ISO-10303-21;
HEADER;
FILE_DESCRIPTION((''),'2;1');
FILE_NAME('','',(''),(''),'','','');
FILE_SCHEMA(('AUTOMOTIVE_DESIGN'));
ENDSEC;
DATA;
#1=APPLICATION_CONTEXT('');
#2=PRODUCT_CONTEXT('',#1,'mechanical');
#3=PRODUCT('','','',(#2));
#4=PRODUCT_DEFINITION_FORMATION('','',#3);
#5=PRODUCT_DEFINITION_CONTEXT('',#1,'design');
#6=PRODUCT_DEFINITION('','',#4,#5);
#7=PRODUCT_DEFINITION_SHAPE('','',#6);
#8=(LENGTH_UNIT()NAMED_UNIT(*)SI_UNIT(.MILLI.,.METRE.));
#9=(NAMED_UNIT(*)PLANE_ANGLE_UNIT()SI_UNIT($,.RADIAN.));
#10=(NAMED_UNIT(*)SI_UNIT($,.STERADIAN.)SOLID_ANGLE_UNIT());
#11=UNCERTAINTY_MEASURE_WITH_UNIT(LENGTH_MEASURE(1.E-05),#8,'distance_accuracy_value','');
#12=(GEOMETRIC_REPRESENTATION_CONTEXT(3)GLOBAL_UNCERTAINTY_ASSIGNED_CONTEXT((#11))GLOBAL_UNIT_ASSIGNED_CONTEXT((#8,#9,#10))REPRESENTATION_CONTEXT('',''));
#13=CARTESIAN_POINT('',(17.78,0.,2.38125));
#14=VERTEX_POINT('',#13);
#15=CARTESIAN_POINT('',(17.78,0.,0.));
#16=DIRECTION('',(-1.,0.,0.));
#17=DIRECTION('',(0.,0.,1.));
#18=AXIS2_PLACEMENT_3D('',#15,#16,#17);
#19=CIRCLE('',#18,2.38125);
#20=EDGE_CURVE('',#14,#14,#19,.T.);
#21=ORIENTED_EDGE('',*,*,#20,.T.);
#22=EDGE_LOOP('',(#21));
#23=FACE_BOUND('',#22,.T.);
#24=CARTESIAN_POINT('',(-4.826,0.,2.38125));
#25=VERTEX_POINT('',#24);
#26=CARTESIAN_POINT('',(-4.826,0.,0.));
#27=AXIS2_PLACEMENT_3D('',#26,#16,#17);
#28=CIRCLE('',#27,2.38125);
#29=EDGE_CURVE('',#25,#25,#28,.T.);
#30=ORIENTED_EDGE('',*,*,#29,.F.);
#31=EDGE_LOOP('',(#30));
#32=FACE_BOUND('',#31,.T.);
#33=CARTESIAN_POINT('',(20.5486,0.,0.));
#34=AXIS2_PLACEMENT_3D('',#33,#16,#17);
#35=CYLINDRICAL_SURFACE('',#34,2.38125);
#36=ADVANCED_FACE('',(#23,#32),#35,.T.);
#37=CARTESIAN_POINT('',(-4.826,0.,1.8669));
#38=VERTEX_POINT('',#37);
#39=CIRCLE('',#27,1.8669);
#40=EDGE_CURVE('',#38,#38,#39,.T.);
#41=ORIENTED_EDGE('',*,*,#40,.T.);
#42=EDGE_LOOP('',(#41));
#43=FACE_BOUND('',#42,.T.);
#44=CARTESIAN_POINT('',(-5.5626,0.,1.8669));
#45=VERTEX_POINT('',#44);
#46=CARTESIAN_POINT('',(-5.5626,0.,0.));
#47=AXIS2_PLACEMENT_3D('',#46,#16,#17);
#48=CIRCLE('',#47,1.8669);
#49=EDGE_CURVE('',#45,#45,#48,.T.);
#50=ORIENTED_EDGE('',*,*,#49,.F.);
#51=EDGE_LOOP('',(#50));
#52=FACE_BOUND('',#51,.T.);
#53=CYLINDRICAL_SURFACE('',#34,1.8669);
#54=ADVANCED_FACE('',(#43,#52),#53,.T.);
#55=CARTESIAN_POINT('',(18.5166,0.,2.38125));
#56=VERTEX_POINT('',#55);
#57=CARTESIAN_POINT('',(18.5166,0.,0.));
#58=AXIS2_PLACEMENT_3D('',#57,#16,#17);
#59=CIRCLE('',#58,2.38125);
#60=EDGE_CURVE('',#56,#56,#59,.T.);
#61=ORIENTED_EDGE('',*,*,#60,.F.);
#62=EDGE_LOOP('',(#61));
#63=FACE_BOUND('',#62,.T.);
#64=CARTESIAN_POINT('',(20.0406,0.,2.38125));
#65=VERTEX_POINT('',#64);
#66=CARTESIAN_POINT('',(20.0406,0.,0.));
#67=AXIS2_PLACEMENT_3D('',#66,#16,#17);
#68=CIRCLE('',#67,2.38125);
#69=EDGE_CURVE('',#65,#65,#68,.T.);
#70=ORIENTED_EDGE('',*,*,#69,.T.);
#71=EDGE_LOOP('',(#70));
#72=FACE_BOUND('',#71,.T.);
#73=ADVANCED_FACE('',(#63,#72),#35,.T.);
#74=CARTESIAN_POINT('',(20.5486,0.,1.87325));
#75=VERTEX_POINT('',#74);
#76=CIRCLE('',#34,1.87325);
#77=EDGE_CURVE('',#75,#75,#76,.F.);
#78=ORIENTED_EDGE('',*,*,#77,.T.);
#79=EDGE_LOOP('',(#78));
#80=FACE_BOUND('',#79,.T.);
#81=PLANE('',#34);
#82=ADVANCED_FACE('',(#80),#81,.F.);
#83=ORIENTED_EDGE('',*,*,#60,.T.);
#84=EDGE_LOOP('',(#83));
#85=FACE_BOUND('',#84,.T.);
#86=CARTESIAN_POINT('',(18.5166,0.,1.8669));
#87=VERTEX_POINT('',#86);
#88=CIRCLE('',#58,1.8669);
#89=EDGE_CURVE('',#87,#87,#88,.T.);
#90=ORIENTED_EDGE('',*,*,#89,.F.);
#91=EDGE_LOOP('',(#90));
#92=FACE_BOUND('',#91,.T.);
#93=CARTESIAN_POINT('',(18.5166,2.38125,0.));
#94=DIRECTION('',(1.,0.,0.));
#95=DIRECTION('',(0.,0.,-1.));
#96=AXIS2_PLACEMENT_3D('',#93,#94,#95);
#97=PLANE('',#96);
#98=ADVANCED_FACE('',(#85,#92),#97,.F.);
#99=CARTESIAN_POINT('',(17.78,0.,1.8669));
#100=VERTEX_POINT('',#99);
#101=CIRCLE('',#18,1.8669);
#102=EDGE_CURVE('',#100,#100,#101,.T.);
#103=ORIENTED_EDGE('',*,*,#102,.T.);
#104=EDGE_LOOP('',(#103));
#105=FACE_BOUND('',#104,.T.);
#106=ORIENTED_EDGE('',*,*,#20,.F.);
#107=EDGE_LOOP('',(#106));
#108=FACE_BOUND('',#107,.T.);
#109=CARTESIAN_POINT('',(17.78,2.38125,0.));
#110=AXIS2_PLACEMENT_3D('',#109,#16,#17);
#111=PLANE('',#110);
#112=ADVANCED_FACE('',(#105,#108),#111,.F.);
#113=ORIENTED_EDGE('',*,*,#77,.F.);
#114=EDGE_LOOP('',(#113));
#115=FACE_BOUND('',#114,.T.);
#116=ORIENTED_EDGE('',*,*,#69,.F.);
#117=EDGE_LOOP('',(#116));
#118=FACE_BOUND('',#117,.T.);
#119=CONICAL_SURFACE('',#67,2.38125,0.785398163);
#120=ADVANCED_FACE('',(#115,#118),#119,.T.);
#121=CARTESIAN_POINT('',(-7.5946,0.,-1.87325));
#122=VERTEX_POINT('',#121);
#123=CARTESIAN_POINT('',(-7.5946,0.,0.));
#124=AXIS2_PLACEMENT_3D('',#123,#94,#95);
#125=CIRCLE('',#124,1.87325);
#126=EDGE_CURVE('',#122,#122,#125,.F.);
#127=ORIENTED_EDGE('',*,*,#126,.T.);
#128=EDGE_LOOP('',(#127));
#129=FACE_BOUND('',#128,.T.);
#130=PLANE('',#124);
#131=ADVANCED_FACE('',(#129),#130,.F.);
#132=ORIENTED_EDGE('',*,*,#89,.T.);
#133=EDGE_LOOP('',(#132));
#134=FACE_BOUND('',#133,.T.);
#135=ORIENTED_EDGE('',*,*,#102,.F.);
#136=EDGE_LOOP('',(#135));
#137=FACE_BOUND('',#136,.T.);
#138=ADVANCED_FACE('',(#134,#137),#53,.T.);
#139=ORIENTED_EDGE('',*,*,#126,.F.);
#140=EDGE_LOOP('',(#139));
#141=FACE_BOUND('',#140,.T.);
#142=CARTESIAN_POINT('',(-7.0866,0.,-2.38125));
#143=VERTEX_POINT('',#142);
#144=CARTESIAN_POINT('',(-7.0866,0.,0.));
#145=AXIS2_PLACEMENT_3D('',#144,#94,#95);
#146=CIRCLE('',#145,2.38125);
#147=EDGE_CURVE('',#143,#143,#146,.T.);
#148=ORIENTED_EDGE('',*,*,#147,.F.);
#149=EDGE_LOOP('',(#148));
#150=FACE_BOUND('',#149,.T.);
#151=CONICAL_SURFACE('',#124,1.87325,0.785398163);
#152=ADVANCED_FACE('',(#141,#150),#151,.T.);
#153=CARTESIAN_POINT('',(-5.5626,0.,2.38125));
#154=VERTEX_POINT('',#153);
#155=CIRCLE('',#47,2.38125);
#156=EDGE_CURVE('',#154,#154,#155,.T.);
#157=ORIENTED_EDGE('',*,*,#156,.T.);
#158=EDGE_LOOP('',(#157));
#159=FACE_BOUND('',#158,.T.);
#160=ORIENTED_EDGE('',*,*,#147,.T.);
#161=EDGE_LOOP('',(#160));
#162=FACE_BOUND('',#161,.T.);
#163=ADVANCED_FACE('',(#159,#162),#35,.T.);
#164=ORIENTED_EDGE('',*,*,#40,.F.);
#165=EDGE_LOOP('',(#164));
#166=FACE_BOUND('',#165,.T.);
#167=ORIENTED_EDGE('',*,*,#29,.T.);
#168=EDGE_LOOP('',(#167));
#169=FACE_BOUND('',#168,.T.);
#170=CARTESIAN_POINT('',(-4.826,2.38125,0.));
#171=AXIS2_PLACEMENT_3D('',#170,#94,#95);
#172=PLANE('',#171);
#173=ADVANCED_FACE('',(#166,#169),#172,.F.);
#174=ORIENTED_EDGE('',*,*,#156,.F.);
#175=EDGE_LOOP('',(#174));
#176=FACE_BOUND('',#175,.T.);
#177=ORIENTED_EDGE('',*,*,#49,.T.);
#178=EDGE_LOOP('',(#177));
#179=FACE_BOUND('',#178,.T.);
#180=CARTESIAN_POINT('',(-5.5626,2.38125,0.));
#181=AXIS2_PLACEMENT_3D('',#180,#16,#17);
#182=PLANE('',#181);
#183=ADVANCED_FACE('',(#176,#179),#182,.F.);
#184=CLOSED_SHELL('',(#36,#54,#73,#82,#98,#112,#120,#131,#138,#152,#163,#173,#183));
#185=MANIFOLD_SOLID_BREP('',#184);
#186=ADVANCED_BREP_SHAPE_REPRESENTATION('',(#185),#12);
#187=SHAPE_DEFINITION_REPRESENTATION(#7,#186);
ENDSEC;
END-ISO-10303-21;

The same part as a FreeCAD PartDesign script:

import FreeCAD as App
import Part
import Sketcher
Q = App.Units.Quantity


def edges_at(feature, points):
    """Names of the edges that pass closest to the given points."""
    edges = feature.Shape.Edges
    near = lambda p: min(range(len(edges)), key=lambda i: edges[i].distToShape(Part.Vertex(*p))[0])
    return sorted({f"Edge{near(p) + 1}" for p in points})


def add_polygon(sketch, points):
    """Adds a closed chain of lines whose ends are joined by coincident constraints."""
    first, n = sketch.GeometryCount, len(points)
    for a, b in zip(points, points[1:] + points[:1]):
        sketch.addGeometry(Part.LineSegment(App.Vector(*a, 0), App.Vector(*b, 0)), False)
    for i in range(n):
        sketch.addConstraint(Sketcher.Constraint("Coincident", first + i, 2, first + (i + 1) % n, 1))

doc = App.newDocument("Part")
body = doc.addObject("PartDesign::Body", "Body")

# Sketch on XY plane
sketch1 = body.newObject("Sketcher::SketchObject", "Sketch")
sketch1.AttachmentSupport = (doc.getObject("XY_Plane"), [""])
sketch1.MapMode = "FlatFace"
add_polygon(sketch1, [(-7.5946, 0), (20.5486, 0), (20.5486, 2.38125), (18.5166, 2.38125), (18.5166, 1.8669), (17.78, 1.8669), (17.78, 2.38125), (-4.826, 2.38125), (-4.826, 1.8669), (-5.5626, 1.8669), (-5.5626, 2.38125), (-7.5946, 2.38125)])  # lines 0-11
sketch1.addConstraint([
    Sketcher.Constraint("Horizontal", 0),
    Sketcher.Constraint("Vertical", 1),
    Sketcher.Constraint("Horizontal", 2),
    Sketcher.Constraint("Vertical", 3),
    Sketcher.Constraint("Horizontal", 4),
    Sketcher.Constraint("Vertical", 5),
    Sketcher.Constraint("Horizontal", 6),
    Sketcher.Constraint("Vertical", 7),
    Sketcher.Constraint("Horizontal", 8),
    Sketcher.Constraint("Vertical", 9),
    Sketcher.Constraint("Horizontal", 10),
    Sketcher.Constraint("Vertical", 11),
    Sketcher.Constraint("PointOnObject", 0, 2, -1),
    Sketcher.Constraint("Horizontal", 2, 2, 5, 2),
    Sketcher.Constraint("Horizontal", 4, 2, 7, 2),
    Sketcher.Constraint("Horizontal", 6, 2, 9, 2),
    Sketcher.Constraint("Equal", 4, 8),
    Sketcher.Constraint("Equal", 2, 10),
    Sketcher.Constraint("DistanceX", 2, 2, 2, 1, Q("0.08 in")),
    Sketcher.Constraint("DistanceX", 6, 2, 6, 1, Q("0.89 in")),
    Sketcher.Constraint("DistanceX", -1, 1, 4, 2, Q("0.7 in")),
    Sketcher.Constraint("DistanceX", 0, 1, 0, 2, Q("1.108 in")),
    Sketcher.Constraint("DistanceY", 1, 1, 1, 2, Q("0.09375 in")),
    Sketcher.Constraint("DistanceY", -1, 1, 3, 2, Q("0.0735 in")),
])
revolution = body.newObject("PartDesign::Revolution", "Revolution")
revolution.Profile = sketch1
revolution.ReferenceAxis = (sketch1, ["H_Axis"])
revolution.Angle = 360
doc.recompute()

chamfer = body.newObject("PartDesign::Chamfer", "Chamfer")
chamfer.Base = (revolution, edges_at(revolution, [(-7.595, -2.381, 0), (20.549, -2.381, 0)]))
chamfer.Size = Q("0.02 in")

doc.recompute()
